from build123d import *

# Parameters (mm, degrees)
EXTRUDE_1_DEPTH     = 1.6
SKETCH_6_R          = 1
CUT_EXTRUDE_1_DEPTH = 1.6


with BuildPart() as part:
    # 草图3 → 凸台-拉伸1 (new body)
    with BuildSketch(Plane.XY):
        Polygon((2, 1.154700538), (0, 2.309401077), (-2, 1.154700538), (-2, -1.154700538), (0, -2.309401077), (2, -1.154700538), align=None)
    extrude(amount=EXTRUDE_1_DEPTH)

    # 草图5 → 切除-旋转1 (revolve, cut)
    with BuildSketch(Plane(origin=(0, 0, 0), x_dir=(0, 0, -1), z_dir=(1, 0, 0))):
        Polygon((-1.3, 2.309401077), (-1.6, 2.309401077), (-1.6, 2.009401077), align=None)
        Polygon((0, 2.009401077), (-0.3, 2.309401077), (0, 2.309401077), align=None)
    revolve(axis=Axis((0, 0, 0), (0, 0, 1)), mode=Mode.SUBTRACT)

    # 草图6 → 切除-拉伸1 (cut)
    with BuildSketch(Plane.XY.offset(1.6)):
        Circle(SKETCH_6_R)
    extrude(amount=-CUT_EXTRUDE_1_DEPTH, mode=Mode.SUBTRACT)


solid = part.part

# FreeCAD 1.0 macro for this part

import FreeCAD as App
import Part
import Sketcher

V = App.Vector
Q = App.Units.Quantity

doc = App.newDocument("Part")
params = doc.addObject("Spreadsheet::Sheet", "Params")
for row, (alias, value) in enumerate([
    ("pad1_length", "1.6 mm"),
    ("sketch2_width", "0.3 mm"),
    ("groove_angle", "360 deg"),
    ("sketch3_diameter", "2 mm"),
    ("pocket1_length", "1.6 mm"),
], start=1):
    params.set(f"A{row}", alias)
    params.set(f"B{row}", "=" + value)
    params.setAlias(f"B{row}", alias)

body = doc.addObject("PartDesign::Body", "Body")

# Sketch on XY plane
sketch1 = doc.addObject("Sketcher::SketchObject", "Sketch")
body.addObject(sketch1)
sketch1.AttachmentSupport = (doc.XY_Plane, [""])
sketch1.MapMode = "FlatFace"
sketch1.addGeometry(Part.LineSegment(V(2, 1.2, 0), V(0, 2.3, 0)), False)
sketch1.addGeometry(Part.LineSegment(V(0, 2.3, 0), V(-2, 1.2, 0)), False)
sketch1.addGeometry(Part.LineSegment(V(-2, 1.2, 0), V(-2, -1.2, 0)), False)
sketch1.addGeometry(Part.LineSegment(V(-2, -1.2, 0), V(0, -2.3, 0)), False)
sketch1.addGeometry(Part.LineSegment(V(0, -2.3, 0), V(2, -1.2, 0)), False)
sketch1.addGeometry(Part.LineSegment(V(2, -1.2, 0), V(2, 1.2, 0)), False)
sketch1.addConstraint(Sketcher.Constraint("Coincident", 0, 2, 1, 1))
sketch1.addConstraint(Sketcher.Constraint("Coincident", 1, 2, 2, 1))
sketch1.addConstraint(Sketcher.Constraint("Coincident", 2, 2, 3, 1))
sketch1.addConstraint(Sketcher.Constraint("Coincident", 3, 2, 4, 1))
sketch1.addConstraint(Sketcher.Constraint("Coincident", 4, 2, 5, 1))
sketch1.addConstraint(Sketcher.Constraint("Coincident", 5, 2, 0, 1))
sketch1.addConstraint(Sketcher.Constraint("Vertical", 2))
sketch1.addConstraint(Sketcher.Constraint("Vertical", 5))
sketch1.addConstraint(Sketcher.Constraint("Symmetric", 0, 2, 3, 2, -1, 1))
sketch1.addConstraint(Sketcher.Constraint("Symmetric", 1, 2, 4, 2, -1, 1))
sketch1.addConstraint(Sketcher.Constraint("PointOnObject", 0, 2, -2))
sketch1.addConstraint(Sketcher.Constraint("Parallel", 0, 3))
sketch1.addConstraint(Sketcher.Constraint("Horizontal", 2, 2, 4, 2))
sketch1.addConstraint(Sketcher.Constraint("Angle", 0, Q("150 deg")))
sketch1.addConstraint(Sketcher.Constraint("DistanceX", 1, 2, -1, 1, Q("2 mm")))
sketch1.addConstraint(Sketcher.Constraint("DistanceY", 2, 2, 2, 1, Q("2.309401 mm")))
pad1 = doc.addObject("PartDesign::Pad", "Pad")
body.addObject(pad1)
pad1.Profile = sketch1
pad1.setExpression("Length", "Params.pad1_length")

# Sketch on YZ plane
sketch2 = doc.addObject("Sketcher::SketchObject", "Sketch001")
body.addObject(sketch2)
sketch2.AttachmentSupport = (doc.YZ_Plane, [""])
sketch2.MapMode = "FlatFace"
sketch2.addGeometry(Part.LineSegment(V(2.31, 1.3, 0), V(2.31, 1.6, 0)), False)
sketch2.addGeometry(Part.LineSegment(V(2.31, 1.6, 0), V(2.01, 1.6, 0)), False)
sketch2.addGeometry(Part.LineSegment(V(2.01, 1.6, 0), V(2.31, 1.3, 0)), False)
sketch2.addGeometry(Part.LineSegment(V(2.31, 0.3, 0), V(2.01, 0, 0)), False)
sketch2.addGeometry(Part.LineSegment(V(2.01, 0, 0), V(2.31, 0, 0)), False)
sketch2.addGeometry(Part.LineSegment(V(2.31, 0, 0), V(2.31, 0.3, 0)), False)
sketch2.addConstraint(Sketcher.Constraint("Coincident", 0, 2, 1, 1))
sketch2.addConstraint(Sketcher.Constraint("Coincident", 1, 2, 2, 1))
sketch2.addConstraint(Sketcher.Constraint("Coincident", 2, 2, 0, 1))
sketch2.addConstraint(Sketcher.Constraint("Coincident", 3, 2, 4, 1))
sketch2.addConstraint(Sketcher.Constraint("Coincident", 4, 2, 5, 1))
sketch2.addConstraint(Sketcher.Constraint("Coincident", 5, 2, 3, 1))
sketch2.addConstraint(Sketcher.Constraint("Vertical", 0))
sketch2.addConstraint(Sketcher.Constraint("Horizontal", 1))
sketch2.addConstraint(Sketcher.Constraint("Horizontal", 4))
sketch2.addConstraint(Sketcher.Constraint("Vertical", 5))
sketch2.addConstraint(Sketcher.Constraint("PointOnObject", 3, 2, -1))
sketch2.addConstraint(Sketcher.Constraint("Perpendicular", 2, 3))
sketch2.addConstraint(Sketcher.Constraint("Vertical", 1, 2, 3, 2))
sketch2.addConstraint(Sketcher.Constraint("Vertical", 2, 2, 4, 2))
sketch2.addConstraint(Sketcher.Constraint("Equal", 4, 0))
sketch2.addConstraint(Sketcher.Constraint("DistanceX", 1, 2, 1, 1, Q("0.3 mm")))
sketch2.addConstraint(Sketcher.Constraint("DistanceY", 5, 2, 2, 2, Q("1 mm")))
sketch2.addConstraint(Sketcher.Constraint("DistanceX", -1, 1, 0, 2, Q("2.309401 mm")))
sketch2.setExpression("Constraints[15]", "Params.sketch2_width")
groove = doc.addObject("PartDesign::Groove", "Groove")
body.addObject(groove)
groove.Profile = sketch2
groove.ReferenceAxis = (sketch2, ["V_Axis"])
groove.setExpression("Angle", "Params.groove_angle")

# Sketch on XY plane
sketch3 = doc.addObject("Sketcher::SketchObject", "Sketch002")
body.addObject(sketch3)
sketch3.AttachmentSupport = (doc.XY_Plane, [""])
sketch3.MapMode = "FlatFace"
sketch3.AttachmentOffset = App.Placement(V(0, 0, 1.6), App.Rotation())
sketch3.addGeometry(Part.Circle(V(0, 0, 0), V(0, 0, 1), 1), False)
sketch3.addConstraint(Sketcher.Constraint("Coincident", 0, 3, -1, 1))
sketch3.addConstraint(Sketcher.Constraint("Diameter", 0, Q("2 mm")))
sketch3.setExpression("Constraints[1]", "Params.sketch3_diameter")
pocket1 = doc.addObject("PartDesign::Pocket", "Pocket")
body.addObject(pocket1)
pocket1.Profile = sketch3
pocket1.setExpression("Length", "Params.pocket1_length")

doc.recompute()
